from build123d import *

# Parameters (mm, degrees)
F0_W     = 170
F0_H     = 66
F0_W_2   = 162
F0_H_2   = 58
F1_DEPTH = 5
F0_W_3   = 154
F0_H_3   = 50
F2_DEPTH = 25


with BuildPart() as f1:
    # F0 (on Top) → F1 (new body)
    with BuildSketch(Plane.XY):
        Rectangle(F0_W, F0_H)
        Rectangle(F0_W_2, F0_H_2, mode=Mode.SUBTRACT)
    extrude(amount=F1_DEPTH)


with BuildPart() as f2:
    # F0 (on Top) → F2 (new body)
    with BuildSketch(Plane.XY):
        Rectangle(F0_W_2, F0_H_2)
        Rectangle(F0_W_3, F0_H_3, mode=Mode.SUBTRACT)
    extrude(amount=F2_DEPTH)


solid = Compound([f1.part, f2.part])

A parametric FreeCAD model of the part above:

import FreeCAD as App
import Part
import Sketcher
from FreeCAD import Vector
Q = App.Units.Quantity

doc = App.newDocument("Part")
params = doc.addObject("Spreadsheet::Sheet", "Params")
for row, (alias, value) in enumerate([
    ("sketch1_width", "170 mm"),
    ("sketch1_width2", "162 mm"),
    ("sketch1_height", "66 mm"),
    ("sketch1_height2", "58 mm"),
    ("pad1_length", "5 mm"),
    ("sketch2_width", "162 mm"),
    ("sketch2_width2", "154 mm"),
    ("sketch2_height", "58 mm"),
    ("sketch2_height2", "50 mm"),
    ("pad2_length", "25 mm"),
], start=1):
    params.set(f"A{row}", alias)
    params.set(f"B{row}", "=" + value)
    params.setAlias(f"B{row}", alias)

body = doc.addObject("PartDesign::Body", "Body")

sketch1 = body.newObject("Sketcher::SketchObject", "Sketch")
sketch1.AttachmentSupport = (doc.getObject("XY_Plane"), [""])
sketch1.MapMode = "FlatFace"
sketch1.addGeometry([
    Part.LineSegment(Vector(-85, 33, 0), Vector(-85, -33, 0)),
    Part.LineSegment(Vector(-85, -33, 0), Vector(85, -33, 0)),
    Part.LineSegment(Vector(85, -33, 0), Vector(85, 33, 0)),
    Part.LineSegment(Vector(85, 33, 0), Vector(-85, 33, 0)),
    Part.LineSegment(Vector(81, -29, 0), Vector(-81, -29, 0)),
    Part.LineSegment(Vector(-81, -29, 0), Vector(-81, 29, 0)),
    Part.LineSegment(Vector(-81, 29, 0), Vector(81, 29, 0)),
    Part.LineSegment(Vector(81, 29, 0), Vector(81, -29, 0)),
], False)
sketch1.addConstraint([
    Sketcher.Constraint("Coincident", 0, 2, 1, 1),
    Sketcher.Constraint("Coincident", 1, 2, 2, 1),
    Sketcher.Constraint("Coincident", 2, 2, 3, 1),
    Sketcher.Constraint("Coincident", 3, 2, 0, 1),
    Sketcher.Constraint("Coincident", 4, 2, 5, 1),
    Sketcher.Constraint("Coincident", 5, 2, 6, 1),
    Sketcher.Constraint("Coincident", 6, 2, 7, 1),
    Sketcher.Constraint("Coincident", 7, 2, 4, 1),
    Sketcher.Constraint("Vertical", 0),
    Sketcher.Constraint("Horizontal", 1),
    Sketcher.Constraint("Vertical", 2),
    Sketcher.Constraint("Horizontal", 3),
    Sketcher.Constraint("Horizontal", 4),
    Sketcher.Constraint("Vertical", 5),
    Sketcher.Constraint("Horizontal", 6),
    Sketcher.Constraint("Vertical", 7),
    Sketcher.Constraint("Symmetric", 0, 2, 2, 2, -1, 1),
    Sketcher.Constraint("Symmetric", 4, 2, 6, 2, -1, 1),
    Sketcher.Constraint("DistanceX", 1, 1, 1, 2, Q("170 mm")),
    Sketcher.Constraint("DistanceX", 4, 2, 4, 1, Q("162 mm")),
    Sketcher.Constraint("DistanceY", 0, 2, 0, 1, Q("66 mm")),
    Sketcher.Constraint("DistanceY", 5, 1, 5, 2, Q("58 mm")),
])
sketch1.setExpression("Constraints[18]", "Params.sketch1_width")
sketch1.setExpression("Constraints[19]", "Params.sketch1_width2")
sketch1.setExpression("Constraints[20]", "Params.sketch1_height")
sketch1.setExpression("Constraints[21]", "Params.sketch1_height2")
pad1 = body.newObject("PartDesign::Pad", "Pad")
pad1.Profile = sketch1
pad1.setExpression("Length", "Params.pad1_length")
body2 = doc.addObject("PartDesign::Body", "Body001")

sketch2 = body2.newObject("Sketcher::SketchObject", "Sketch001")
sketch2.AttachmentSupport = (doc.getObject("XY_Plane001"), [""])
sketch2.MapMode = "FlatFace"
sketch2.addGeometry([
    Part.LineSegment(Vector(-81, 29, 0), Vector(-81, -29, 0)),
    Part.LineSegment(Vector(-81, -29, 0), Vector(81, -29, 0)),
    Part.LineSegment(Vector(81, -29, 0), Vector(81, 29, 0)),
    Part.LineSegment(Vector(81, 29, 0), Vector(-81, 29, 0)),
    Part.LineSegment(Vector(77, -25, 0), Vector(-77, -25, 0)),
    Part.LineSegment(Vector(-77, -25, 0), Vector(-77, 25, 0)),
    Part.LineSegment(Vector(-77, 25, 0), Vector(77, 25, 0)),
    Part.LineSegment(Vector(77, 25, 0), Vector(77, -25, 0)),
], False)
sketch2.addConstraint([
    Sketcher.Constraint("Coincident", 0, 2, 1, 1),
    Sketcher.Constraint("Coincident", 1, 2, 2, 1),
    Sketcher.Constraint("Coincident", 2, 2, 3, 1),
    Sketcher.Constraint("Coincident", 3, 2, 0, 1),
    Sketcher.Constraint("Coincident", 4, 2, 5, 1),
    Sketcher.Constraint("Coincident", 5, 2, 6, 1),
    Sketcher.Constraint("Coincident", 6, 2, 7, 1),
    Sketcher.Constraint("Coincident", 7, 2, 4, 1),
    Sketcher.Constraint("Vertical", 0),
    Sketcher.Constraint("Horizontal", 1),
    Sketcher.Constraint("Vertical", 2),
    Sketcher.Constraint("Horizontal", 3),
    Sketcher.Constraint("Horizontal", 4),
    Sketcher.Constraint("Vertical", 5),
    Sketcher.Constraint("Horizontal", 6),
    Sketcher.Constraint("Vertical", 7),
    Sketcher.Constraint("Symmetric", 0, 2, 2, 2, -1, 1),
    Sketcher.Constraint("Symmetric", 4, 2, 6, 2, -1, 1),
    Sketcher.Constraint("DistanceX", 1, 1, 1, 2, Q("162 mm")),
    Sketcher.Constraint("DistanceX", 4, 2, 4, 1, Q("154 mm")),
    Sketcher.Constraint("DistanceY", 0, 2, 0, 1, Q("58 mm")),
    Sketcher.Constraint("DistanceY", 5, 1, 5, 2, Q("50 mm")),
])
sketch2.setExpression("Constraints[18]", "Params.sketch2_width")
sketch2.setExpression("Constraints[19]", "Params.sketch2_width2")
sketch2.setExpression("Constraints[20]", "Params.sketch2_height")
sketch2.setExpression("Constraints[21]", "Params.sketch2_height2")
pad2 = body2.newObject("PartDesign::Pad", "Pad001")
pad2.Profile = sketch2
pad2.setExpression("Length", "Params.pad2_length")

doc.recompute()
